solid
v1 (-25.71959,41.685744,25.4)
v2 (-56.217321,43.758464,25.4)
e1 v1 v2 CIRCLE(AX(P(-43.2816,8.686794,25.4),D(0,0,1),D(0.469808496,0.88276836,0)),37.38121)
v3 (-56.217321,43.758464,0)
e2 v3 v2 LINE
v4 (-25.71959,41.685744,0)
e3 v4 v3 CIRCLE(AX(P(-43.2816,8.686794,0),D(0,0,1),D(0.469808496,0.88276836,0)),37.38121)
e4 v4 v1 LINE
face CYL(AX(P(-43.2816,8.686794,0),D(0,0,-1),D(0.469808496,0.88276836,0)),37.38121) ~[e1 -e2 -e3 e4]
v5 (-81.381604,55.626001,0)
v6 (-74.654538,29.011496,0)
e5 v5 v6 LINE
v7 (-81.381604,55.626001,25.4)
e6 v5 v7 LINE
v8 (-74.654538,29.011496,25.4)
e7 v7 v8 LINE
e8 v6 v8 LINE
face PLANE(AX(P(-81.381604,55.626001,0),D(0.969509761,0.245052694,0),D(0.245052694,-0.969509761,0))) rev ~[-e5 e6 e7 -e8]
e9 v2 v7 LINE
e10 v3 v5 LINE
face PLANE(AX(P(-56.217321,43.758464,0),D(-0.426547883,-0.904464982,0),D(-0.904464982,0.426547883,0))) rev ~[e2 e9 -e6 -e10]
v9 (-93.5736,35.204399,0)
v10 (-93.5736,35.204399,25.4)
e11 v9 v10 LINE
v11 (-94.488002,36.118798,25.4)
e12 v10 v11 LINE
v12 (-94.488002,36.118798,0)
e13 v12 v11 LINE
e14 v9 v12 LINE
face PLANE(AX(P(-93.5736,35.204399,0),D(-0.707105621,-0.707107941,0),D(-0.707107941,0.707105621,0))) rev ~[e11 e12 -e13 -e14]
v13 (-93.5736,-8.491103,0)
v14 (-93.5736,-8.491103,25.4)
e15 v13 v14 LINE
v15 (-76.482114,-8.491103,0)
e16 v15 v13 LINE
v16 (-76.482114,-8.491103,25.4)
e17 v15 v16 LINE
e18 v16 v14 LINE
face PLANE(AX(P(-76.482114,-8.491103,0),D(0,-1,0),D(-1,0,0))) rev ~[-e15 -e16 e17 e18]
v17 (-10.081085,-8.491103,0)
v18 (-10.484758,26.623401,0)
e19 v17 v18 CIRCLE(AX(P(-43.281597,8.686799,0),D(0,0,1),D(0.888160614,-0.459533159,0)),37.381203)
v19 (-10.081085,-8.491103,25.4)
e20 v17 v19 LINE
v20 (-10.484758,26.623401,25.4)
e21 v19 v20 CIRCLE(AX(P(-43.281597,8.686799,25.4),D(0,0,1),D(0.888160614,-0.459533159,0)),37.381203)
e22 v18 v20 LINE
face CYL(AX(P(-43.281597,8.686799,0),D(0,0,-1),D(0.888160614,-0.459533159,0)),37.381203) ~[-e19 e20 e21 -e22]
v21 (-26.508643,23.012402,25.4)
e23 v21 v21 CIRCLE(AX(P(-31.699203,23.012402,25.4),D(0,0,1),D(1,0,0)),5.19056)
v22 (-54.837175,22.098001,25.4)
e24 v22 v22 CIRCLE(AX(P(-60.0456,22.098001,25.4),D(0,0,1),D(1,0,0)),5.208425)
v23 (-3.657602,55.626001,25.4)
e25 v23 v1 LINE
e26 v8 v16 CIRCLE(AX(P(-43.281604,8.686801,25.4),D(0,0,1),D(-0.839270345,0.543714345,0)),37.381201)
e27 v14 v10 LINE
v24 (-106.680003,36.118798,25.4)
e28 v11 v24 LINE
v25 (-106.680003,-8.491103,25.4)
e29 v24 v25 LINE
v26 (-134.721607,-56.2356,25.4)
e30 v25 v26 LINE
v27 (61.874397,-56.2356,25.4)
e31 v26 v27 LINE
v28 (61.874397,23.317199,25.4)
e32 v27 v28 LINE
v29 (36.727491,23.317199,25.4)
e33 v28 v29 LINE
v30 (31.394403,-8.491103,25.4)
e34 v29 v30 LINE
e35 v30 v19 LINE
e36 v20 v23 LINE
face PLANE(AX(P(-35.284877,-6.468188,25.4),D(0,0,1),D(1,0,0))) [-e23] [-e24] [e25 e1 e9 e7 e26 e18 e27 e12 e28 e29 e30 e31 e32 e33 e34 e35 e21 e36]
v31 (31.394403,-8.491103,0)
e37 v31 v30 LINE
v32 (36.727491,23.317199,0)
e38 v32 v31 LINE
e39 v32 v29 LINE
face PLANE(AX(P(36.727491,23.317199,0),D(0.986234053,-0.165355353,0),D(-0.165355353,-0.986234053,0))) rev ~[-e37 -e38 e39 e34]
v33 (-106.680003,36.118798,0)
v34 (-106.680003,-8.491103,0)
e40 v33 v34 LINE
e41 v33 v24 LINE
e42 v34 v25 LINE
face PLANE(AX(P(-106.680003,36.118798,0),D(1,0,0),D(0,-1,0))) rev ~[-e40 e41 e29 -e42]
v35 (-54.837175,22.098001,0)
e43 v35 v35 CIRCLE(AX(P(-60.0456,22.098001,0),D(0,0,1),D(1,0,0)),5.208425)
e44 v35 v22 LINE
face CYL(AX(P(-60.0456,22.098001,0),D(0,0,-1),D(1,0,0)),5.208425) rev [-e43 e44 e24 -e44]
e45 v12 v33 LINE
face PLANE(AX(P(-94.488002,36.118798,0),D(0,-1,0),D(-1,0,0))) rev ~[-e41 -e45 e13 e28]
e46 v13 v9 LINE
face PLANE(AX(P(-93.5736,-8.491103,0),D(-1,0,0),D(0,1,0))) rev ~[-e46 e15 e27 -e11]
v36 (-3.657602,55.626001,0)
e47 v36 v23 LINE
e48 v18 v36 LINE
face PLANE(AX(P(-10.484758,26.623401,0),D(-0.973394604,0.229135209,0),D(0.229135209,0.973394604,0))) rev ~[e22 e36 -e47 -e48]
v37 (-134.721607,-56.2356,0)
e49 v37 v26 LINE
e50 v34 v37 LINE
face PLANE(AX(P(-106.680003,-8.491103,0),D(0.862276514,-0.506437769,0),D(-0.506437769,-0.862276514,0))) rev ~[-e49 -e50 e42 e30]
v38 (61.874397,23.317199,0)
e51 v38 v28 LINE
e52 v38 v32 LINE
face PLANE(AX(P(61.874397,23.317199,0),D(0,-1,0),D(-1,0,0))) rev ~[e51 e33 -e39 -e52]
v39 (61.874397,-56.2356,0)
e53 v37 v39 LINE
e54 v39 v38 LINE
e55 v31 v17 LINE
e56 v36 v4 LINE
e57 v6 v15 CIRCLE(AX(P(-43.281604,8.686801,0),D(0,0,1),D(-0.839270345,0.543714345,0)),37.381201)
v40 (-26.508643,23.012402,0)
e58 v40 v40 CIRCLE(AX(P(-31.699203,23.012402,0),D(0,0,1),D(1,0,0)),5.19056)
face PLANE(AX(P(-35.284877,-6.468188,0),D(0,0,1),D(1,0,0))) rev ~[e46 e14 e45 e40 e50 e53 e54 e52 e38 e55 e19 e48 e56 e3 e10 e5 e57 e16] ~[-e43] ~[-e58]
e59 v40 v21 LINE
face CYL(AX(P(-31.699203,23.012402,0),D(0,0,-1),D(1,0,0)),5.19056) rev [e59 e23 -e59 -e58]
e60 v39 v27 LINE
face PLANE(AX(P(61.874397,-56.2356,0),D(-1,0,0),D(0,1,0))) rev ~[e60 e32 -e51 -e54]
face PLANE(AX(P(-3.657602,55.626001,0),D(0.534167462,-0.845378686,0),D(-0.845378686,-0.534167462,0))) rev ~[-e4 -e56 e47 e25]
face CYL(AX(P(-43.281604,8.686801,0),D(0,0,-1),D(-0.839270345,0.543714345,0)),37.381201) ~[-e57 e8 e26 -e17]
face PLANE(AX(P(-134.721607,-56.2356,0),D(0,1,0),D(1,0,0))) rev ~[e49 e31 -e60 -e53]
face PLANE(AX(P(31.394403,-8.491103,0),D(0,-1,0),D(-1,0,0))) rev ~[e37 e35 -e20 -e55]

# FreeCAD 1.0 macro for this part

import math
import FreeCAD as App
import Part
import Sketcher

V = App.Vector
Q = App.Units.Quantity

doc = App.newDocument("Part")
params = doc.addObject("Spreadsheet::Sheet", "Params")
for row, (alias, value) in enumerate([
    ("sketch1_width", "0.48 in"),
    ("sketch1_width2", "7.7400002 in"),
    ("sketch1_height", "3.132 in"),
    ("pad1_length", "1 in"),
], start=1):
    params.set(f"A{row}", alias)
    params.set(f"B{row}", "=" + value)
    params.setAlias(f"B{row}", alias)

body = doc.addObject("PartDesign::Body", "Body")

# Sketch on XY plane
sketch1 = body.newObject("Sketcher::SketchObject", "Sketch")
sketch1.AttachmentSupport = (doc.getObject("XY_Plane"), [""])
sketch1.MapMode = "FlatFace"
sketch1.addGeometry(Part.LineSegment(V(-81.4, 55.6, 0), V(-74.7, 29, 0)), False)
sketch1.addGeometry(Part.ArcOfCircle(Part.Circle(V(-43.3, 8.7, 0), V(0, 0, 1), 37.4), math.radians(147), math.radians(207)), False)
sketch1.addGeometry(Part.LineSegment(V(-76.5, -8.5, 0), V(-93.6, -8.5, 0)), False)
sketch1.addGeometry(Part.LineSegment(V(-93.6, -8.5, 0), V(-93.6, 35.2, 0)), False)
sketch1.addGeometry(Part.LineSegment(V(-93.6, 35.2, 0), V(-94.5, 36.1, 0)), False)
sketch1.addGeometry(Part.LineSegment(V(-94.5, 36.1, 0), V(-106.7, 36.1, 0)), False)
sketch1.addGeometry(Part.LineSegment(V(-106.7, 36.1, 0), V(-106.7, -8.5, 0)), False)
sketch1.addGeometry(Part.LineSegment(V(-106.7, -8.5, 0), V(-134.7, -56.2, 0)), False)
sketch1.addGeometry(Part.LineSegment(V(-134.7, -56.2, 0), V(61.9, -56.2, 0)), False)
sketch1.addGeometry(Part.LineSegment(V(61.9, -56.2, 0), V(61.9, 23.3, 0)), False)
sketch1.addGeometry(Part.LineSegment(V(61.9, 23.3, 0), V(36.7, 23.3, 0)), False)
sketch1.addGeometry(Part.LineSegment(V(36.7, 23.3, 0), V(31.4, -8.5, 0)), False)
sketch1.addGeometry(Part.LineSegment(V(31.4, -8.5, 0), V(-10.1, -8.5, 0)), False)
sketch1.addGeometry(Part.ArcOfCircle(Part.Circle(V(-43.3, 8.7, 0), V(0, 0, 1), 37.4), math.radians(-27), math.radians(29)), False)
sketch1.addGeometry(Part.LineSegment(V(-10.5, 26.6, 0), V(-3.7, 55.6, 0)), False)
sketch1.addGeometry(Part.LineSegment(V(-3.7, 55.6, 0), V(-25.7, 41.7, 0)), False)
sketch1.addGeometry(Part.ArcOfCircle(Part.Circle(V(-43.3, 8.7, 0), V(0, 0, 1), 37.4), math.radians(62), math.radians(110)), False)
sketch1.addGeometry(Part.LineSegment(V(-56.2, 43.8, 0), V(-81.4, 55.6, 0)), False)
sketch1.addGeometry(Part.Circle(V(-60, 22.1, 0), V(0, 0, 1), 5.2), False)
sketch1.addGeometry(Part.Circle(V(-31.7, 23, 0), V(0, 0, 1), 5.2), False)
sketch1.addConstraint(Sketcher.Constraint("Coincident", 0, 2, 1, 1))
sketch1.addConstraint(Sketcher.Constraint("Coincident", 1, 2, 2, 1))
sketch1.addConstraint(Sketcher.Constraint("Coincident", 2, 2, 3, 1))
sketch1.addConstraint(Sketcher.Constraint("Coincident", 3, 2, 4, 1))
sketch1.addConstraint(Sketcher.Constraint("Coincident", 4, 2, 5, 1))
sketch1.addConstraint(Sketcher.Constraint("Coincident", 5, 2, 6, 1))
sketch1.addConstraint(Sketcher.Constraint("Coincident", 6, 2, 7, 1))
sketch1.addConstraint(Sketcher.Constraint("Coincident", 7, 2, 8, 1))
sketch1.addConstraint(Sketcher.Constraint("Coincident", 8, 2, 9, 1))
sketch1.addConstraint(Sketcher.Constraint("Coincident", 9, 2, 10, 1))
sketch1.addConstraint(Sketcher.Constraint("Coincident", 10, 2, 11, 1))
sketch1.addConstraint(Sketcher.Constraint("Coincident", 11, 2, 12, 1))
sketch1.addConstraint(Sketcher.Constraint("Coincident", 12, 2, 13, 1))
sketch1.addConstraint(Sketcher.Constraint("Coincident", 13, 2, 14, 1))
sketch1.addConstraint(Sketcher.Constraint("Coincident", 14, 2, 15, 1))
sketch1.addConstraint(Sketcher.Constraint("Coincident", 15, 2, 16, 1))
sketch1.addConstraint(Sketcher.Constraint("Coincident", 16, 2, 17, 1))
sketch1.addConstraint(Sketcher.Constraint("Coincident", 17, 2, 0, 1))
sketch1.addConstraint(Sketcher.Constraint("Horizontal", 2))
sketch1.addConstraint(Sketcher.Constraint("Vertical", 3))
sketch1.addConstraint(Sketcher.Constraint("Horizontal", 5))
sketch1.addConstraint(Sketcher.Constraint("Vertical", 6))
sketch1.addConstraint(Sketcher.Constraint("Horizontal", 8))
sketch1.addConstraint(Sketcher.Constraint("Vertical", 9))
sketch1.addConstraint(Sketcher.Constraint("Horizontal", 10))
sketch1.addConstraint(Sketcher.Constraint("Horizontal", 12))
sketch1.addConstraint(Sketcher.Constraint("Coincident", 13, 3, 1, 3))
sketch1.addConstraint(Sketcher.Constraint("Coincident", 16, 3, 1, 3))
sketch1.addConstraint(Sketcher.Constraint("Equal", 1, 13))
sketch1.addConstraint(Sketcher.Constraint("Horizontal", 2, 2, 6, 2))
sketch1.addConstraint(Sketcher.Constraint("Horizontal", 6, 2, 11, 2))
sketch1.addConstraint(Sketcher.Constraint("Horizontal", 14, 2, 17, 2))
sketch1.addConstraint(Sketcher.Constraint("DistanceX", 5, 2, 5, 1, Q("0.48 in")))
sketch1.addConstraint(Sketcher.Constraint("DistanceX", 8, 1, 8, 2, Q("7.7400002 in")))
sketch1.addConstraint(Sketcher.Constraint("DistanceX", 5, 2, -1, 1, Q("4.2000001 in")))
sketch1.addConstraint(Sketcher.Constraint("DistanceY", 7, 2, 3, 2, Q("3.6 in")))
sketch1.addConstraint(Sketcher.Constraint("DistanceX", 18, 3, 8, 2, Q("4.7999999 in")))
sketch1.addConstraint(Sketcher.Constraint("DistanceY", 9, 1, 9, 2, Q("3.132 in")))
sketch1.addConstraint(Sketcher.Constraint("DistanceY", -1, 1, 18, 3, Q("0.87 in")))
sketch1.addConstraint(Sketcher.Constraint("DistanceY", -1, 1, 14, 2, Q("2.19 in")))
sketch1.addConstraint(Sketcher.Constraint("Radius", 1, 37.381201))
sketch1.addConstraint(Sketcher.Constraint("DistanceX", 18, 3, 1, 3, Q("0.6599998 in")))
sketch1.addConstraint(Sketcher.Constraint("DistanceX", 2, 2, 18, 3, Q("1.32 in")))
sketch1.addConstraint(Sketcher.Constraint("DistanceY", 8, 2, 19, 3, Q("3.1200001 in")))
sketch1.addConstraint(Sketcher.Constraint("DistanceX", 13, 3, 11, 2, Q("2.94 in")))
sketch1.addConstraint(Sketcher.Constraint("DistanceX", 13, 3, 14, 2, Q("1.5599998 in")))
sketch1.addConstraint(Sketcher.Constraint("DistanceX", 3, 2, 17, 2, Q("0.4799998 in")))
sketch1.addConstraint(Sketcher.Constraint("Diameter", 18, 10.41685))
sketch1.addConstraint(Sketcher.Constraint("Diameter", 19, 10.38112))
sketch1.addConstraint(Sketcher.Constraint("DistanceX", 1, 3, -1, 1, Q("1.7040002 in")))
sketch1.addConstraint(Sketcher.Constraint("DistanceY", -1, 1, 1, 3, Q("0.342 in")))
sketch1.addConstraint(Sketcher.Constraint("DistanceX", 19, 3, -1, 1, Q("1.2480001 in")))
sketch1.addConstraint(Sketcher.Constraint("DistanceY", -1, 1, 19, 3, Q("0.9060001 in")))
sketch1.addConstraint(Sketcher.Constraint("DistanceY", -1, 1, 4, 2, Q("1.4219999 in")))
sketch1.addConstraint(Sketcher.Constraint("Radius", 16, 37.38121))
sketch1.addConstraint(Sketcher.Constraint("DistanceY", 6, 2, 6, 1, 44.609901))
sketch1.addConstraint(Sketcher.Constraint("DistanceY", -1, 1, 13, 2, 26.623401))
sketch1.addConstraint(Sketcher.Constraint("DistanceY", 16, 3, 0, 2, 20.324702))
sketch1.addConstraint(Sketcher.Constraint("DistanceX", 10, 2, 10, 1, 25.146906))
sketch1.addConstraint(Sketcher.Constraint("DistanceX", 15, 2, -1, 1, 25.71959))
sketch1.addConstraint(Sketcher.Constraint("DistanceX", 16, 2, -1, 1, 56.217321))
sketch1.setExpression("Constraints[32]", "Params.sketch1_width")
sketch1.setExpression("Constraints[33]", "Params.sketch1_width2")
sketch1.setExpression("Constraints[37]", "Params.sketch1_height")
pad1 = body.newObject("PartDesign::Pad", "Pad")
pad1.Profile = sketch1
pad1.setExpression("Length", "Params.pad1_length")

doc.recompute()
